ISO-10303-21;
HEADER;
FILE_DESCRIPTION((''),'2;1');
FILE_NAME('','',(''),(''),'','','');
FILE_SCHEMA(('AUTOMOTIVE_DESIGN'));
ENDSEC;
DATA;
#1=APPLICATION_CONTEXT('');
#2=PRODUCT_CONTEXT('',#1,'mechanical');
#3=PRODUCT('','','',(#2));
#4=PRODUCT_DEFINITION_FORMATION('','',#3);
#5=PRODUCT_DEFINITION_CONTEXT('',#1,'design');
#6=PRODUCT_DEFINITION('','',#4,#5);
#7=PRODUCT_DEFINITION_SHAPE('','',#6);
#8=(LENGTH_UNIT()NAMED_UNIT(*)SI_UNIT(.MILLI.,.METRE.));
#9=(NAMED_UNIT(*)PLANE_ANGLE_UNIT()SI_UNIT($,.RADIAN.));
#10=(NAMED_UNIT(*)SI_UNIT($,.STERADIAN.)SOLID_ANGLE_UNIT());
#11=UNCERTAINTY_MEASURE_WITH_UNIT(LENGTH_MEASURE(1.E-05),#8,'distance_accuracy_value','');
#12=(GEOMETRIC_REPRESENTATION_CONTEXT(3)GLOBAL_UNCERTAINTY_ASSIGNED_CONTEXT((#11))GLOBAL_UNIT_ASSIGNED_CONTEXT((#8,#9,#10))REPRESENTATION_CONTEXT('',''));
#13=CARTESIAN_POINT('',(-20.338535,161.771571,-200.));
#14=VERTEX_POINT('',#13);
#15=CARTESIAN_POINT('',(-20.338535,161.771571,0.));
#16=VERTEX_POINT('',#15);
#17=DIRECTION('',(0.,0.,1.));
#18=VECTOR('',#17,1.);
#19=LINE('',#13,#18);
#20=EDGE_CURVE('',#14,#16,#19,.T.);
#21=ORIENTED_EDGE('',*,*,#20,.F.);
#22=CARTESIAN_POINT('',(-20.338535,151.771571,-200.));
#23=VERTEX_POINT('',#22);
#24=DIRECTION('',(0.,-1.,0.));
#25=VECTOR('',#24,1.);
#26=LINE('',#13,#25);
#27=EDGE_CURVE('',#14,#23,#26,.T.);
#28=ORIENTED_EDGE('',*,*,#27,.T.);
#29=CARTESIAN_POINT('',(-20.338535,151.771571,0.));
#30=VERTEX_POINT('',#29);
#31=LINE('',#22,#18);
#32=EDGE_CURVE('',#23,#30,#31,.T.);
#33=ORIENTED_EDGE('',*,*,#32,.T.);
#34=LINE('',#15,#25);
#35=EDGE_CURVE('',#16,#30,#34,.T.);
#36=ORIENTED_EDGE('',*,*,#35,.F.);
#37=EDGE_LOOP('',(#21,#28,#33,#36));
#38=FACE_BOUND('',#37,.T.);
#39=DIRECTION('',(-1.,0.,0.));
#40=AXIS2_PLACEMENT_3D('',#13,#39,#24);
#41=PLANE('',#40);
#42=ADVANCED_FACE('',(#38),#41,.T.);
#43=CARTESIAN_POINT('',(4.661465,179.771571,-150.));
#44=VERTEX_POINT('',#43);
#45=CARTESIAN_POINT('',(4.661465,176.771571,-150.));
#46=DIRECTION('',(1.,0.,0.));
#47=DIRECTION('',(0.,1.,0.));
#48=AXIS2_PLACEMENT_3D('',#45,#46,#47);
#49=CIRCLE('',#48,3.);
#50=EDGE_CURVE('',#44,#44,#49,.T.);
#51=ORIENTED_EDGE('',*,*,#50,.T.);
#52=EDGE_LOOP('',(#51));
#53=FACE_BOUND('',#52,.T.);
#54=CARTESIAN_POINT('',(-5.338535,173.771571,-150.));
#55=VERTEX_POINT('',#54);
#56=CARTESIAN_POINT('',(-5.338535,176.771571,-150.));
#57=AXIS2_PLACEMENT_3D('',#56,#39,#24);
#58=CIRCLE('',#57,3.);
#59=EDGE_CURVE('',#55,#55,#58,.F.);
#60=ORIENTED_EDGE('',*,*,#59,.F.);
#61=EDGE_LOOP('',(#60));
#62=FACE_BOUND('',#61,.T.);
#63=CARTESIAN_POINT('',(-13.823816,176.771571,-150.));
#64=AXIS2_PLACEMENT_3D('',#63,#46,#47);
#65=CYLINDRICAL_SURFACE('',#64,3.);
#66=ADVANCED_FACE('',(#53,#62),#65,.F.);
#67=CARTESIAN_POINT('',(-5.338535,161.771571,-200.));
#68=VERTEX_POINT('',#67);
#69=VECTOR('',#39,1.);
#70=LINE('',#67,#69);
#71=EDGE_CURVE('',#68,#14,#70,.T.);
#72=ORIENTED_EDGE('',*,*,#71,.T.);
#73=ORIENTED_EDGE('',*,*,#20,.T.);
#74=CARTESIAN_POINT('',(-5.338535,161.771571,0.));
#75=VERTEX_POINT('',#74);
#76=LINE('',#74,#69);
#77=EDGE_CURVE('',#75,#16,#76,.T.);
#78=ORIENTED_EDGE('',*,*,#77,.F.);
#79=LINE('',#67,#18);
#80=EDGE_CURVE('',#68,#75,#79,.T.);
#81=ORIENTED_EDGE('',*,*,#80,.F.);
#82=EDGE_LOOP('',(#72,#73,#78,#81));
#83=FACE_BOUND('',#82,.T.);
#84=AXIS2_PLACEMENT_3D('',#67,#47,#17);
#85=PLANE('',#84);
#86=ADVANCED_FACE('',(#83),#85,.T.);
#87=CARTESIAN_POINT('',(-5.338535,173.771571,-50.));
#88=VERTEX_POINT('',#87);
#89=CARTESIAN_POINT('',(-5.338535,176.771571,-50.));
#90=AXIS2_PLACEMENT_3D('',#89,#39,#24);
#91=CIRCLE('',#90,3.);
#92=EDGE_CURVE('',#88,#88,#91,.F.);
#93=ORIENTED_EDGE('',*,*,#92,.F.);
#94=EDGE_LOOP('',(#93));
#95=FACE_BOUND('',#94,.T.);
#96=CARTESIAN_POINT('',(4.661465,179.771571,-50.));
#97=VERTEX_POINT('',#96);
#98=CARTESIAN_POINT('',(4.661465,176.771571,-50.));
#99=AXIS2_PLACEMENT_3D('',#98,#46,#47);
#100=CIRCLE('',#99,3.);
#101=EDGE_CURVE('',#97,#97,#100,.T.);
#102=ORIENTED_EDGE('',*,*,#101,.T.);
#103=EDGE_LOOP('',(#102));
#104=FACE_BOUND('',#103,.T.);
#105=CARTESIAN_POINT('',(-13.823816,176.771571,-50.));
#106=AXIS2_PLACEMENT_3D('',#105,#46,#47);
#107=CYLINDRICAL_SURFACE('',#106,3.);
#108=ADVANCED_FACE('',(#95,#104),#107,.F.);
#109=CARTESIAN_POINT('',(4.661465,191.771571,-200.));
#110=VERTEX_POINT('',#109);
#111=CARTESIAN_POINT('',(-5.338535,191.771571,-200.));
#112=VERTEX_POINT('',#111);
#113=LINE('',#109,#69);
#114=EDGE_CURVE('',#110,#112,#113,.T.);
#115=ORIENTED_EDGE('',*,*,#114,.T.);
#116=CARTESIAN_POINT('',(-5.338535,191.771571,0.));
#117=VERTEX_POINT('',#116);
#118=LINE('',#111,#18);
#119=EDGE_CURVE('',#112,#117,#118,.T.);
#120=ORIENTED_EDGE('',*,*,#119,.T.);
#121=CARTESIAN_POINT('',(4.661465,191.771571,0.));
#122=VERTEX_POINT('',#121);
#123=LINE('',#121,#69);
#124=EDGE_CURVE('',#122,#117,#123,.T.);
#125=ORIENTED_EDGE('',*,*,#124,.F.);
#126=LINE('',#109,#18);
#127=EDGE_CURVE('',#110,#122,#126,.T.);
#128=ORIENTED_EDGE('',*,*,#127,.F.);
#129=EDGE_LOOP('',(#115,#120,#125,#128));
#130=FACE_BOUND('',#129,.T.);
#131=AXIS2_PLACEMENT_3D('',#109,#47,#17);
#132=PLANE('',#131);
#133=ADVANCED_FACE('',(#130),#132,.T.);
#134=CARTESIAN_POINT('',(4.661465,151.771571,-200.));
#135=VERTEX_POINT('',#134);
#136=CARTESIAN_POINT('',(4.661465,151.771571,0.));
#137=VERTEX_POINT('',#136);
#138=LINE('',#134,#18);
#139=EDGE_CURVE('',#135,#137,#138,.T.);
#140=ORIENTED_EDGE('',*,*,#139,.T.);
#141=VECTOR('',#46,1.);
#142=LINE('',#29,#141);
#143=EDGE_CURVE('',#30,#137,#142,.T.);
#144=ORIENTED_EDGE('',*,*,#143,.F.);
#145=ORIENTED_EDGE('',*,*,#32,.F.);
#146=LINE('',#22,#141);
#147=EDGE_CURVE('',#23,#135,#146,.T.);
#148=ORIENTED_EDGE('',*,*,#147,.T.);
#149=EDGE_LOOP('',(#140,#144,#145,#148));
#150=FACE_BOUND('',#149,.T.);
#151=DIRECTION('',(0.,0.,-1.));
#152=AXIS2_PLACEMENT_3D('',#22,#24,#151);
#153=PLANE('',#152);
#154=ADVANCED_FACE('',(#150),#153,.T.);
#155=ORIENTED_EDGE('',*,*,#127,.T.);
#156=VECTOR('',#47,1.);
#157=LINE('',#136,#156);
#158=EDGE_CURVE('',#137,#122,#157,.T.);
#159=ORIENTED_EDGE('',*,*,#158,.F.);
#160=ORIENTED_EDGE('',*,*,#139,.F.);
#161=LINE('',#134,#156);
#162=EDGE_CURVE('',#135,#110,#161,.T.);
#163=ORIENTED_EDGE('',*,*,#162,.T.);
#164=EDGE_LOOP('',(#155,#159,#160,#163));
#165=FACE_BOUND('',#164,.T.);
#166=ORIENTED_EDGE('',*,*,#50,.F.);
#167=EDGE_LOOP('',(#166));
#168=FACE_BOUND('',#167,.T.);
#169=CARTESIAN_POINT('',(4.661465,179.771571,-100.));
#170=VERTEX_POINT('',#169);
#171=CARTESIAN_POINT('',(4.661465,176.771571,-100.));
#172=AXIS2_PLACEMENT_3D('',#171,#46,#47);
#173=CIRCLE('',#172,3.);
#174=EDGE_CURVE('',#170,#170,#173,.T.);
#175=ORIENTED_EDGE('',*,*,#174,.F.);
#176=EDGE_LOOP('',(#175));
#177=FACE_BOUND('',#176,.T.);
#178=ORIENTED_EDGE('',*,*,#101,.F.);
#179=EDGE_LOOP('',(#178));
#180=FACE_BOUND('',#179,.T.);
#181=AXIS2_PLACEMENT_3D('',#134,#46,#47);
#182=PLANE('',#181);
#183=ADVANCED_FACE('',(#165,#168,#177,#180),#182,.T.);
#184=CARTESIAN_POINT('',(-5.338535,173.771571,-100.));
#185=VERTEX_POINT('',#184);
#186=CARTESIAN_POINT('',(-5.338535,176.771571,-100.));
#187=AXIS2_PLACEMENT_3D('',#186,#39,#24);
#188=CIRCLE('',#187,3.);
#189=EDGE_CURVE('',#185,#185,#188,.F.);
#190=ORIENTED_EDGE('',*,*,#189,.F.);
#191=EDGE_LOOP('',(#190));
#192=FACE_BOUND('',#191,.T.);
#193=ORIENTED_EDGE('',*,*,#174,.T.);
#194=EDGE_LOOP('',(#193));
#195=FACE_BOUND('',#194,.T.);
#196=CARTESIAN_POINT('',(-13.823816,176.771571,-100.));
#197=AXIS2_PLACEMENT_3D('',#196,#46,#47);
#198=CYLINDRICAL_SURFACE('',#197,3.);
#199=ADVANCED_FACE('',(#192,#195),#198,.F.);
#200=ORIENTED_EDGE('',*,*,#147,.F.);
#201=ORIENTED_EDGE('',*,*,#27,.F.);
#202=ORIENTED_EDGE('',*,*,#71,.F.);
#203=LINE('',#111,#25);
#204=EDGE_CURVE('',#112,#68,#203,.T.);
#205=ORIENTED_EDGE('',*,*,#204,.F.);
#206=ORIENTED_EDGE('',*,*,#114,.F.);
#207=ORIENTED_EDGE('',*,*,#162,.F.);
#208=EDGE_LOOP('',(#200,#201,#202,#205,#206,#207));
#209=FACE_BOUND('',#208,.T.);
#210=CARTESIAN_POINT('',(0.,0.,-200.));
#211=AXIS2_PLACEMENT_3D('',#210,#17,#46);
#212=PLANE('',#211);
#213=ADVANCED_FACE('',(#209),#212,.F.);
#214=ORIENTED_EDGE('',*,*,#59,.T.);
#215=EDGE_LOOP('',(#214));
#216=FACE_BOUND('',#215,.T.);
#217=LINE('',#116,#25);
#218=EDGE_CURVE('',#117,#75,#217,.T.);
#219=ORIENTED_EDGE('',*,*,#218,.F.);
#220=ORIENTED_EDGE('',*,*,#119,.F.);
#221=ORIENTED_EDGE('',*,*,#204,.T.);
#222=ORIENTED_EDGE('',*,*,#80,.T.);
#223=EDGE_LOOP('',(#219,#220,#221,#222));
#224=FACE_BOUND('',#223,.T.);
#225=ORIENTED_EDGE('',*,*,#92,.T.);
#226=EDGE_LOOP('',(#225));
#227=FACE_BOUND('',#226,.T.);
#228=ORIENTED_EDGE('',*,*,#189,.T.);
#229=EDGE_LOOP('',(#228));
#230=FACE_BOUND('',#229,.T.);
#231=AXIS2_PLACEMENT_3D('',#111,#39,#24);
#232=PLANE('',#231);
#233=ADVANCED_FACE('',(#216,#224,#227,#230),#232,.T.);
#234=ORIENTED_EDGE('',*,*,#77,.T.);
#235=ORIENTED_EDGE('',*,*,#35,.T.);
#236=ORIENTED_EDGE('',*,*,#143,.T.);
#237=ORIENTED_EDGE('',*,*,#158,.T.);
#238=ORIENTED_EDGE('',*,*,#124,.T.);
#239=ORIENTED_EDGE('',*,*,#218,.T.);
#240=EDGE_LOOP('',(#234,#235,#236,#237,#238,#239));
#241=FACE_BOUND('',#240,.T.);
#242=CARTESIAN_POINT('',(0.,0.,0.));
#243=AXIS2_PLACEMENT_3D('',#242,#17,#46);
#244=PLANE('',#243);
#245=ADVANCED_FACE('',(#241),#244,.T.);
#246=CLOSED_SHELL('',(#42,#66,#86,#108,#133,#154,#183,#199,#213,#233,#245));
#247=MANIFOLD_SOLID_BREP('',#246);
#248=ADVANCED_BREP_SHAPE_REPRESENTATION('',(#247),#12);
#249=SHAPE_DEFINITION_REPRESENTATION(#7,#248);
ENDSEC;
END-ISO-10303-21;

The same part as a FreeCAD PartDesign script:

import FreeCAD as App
import Part
import Sketcher
Q = App.Units.Quantity


def add_polygon(sketch, points):
    """Adds a closed chain of lines whose ends are joined by coincident constraints."""
    first, n = sketch.GeometryCount, len(points)
    for a, b in zip(points, points[1:] + points[:1]):
        sketch.addGeometry(Part.LineSegment(App.Vector(*a, 0), App.Vector(*b, 0)), False)
    for i in range(n):
        sketch.addConstraint(Sketcher.Constraint("Coincident", first + i, 2, first + (i + 1) % n, 1))

doc = App.newDocument("Part")
params = doc.addObject("Spreadsheet::Sheet", "Params")
for row, (alias, value) in enumerate([
    ("sketch1_width", "15 mm"),
    ("sketch1_width2", "25 mm"),
    ("sketch1_height", "30 mm"),
    ("pad1_length", "200 mm"),
    ("sketch2_diameter", "6 mm"),
    ("pocket1_length", "289.210955 mm"),
    ("linearpattern_pitch", "50 mm"),
], start=1):
    params.set(f"A{row}", alias)
    params.set(f"B{row}", "=" + value)
    params.setAlias(f"B{row}", alias)

body = doc.addObject("PartDesign::Body", "Body")

# Sketch on XY plane
sketch1 = body.newObject("Sketcher::SketchObject", "Sketch")
sketch1.AttachmentSupport = (doc.getObject("XY_Plane"), [""])
sketch1.MapMode = "FlatFace"
add_polygon(sketch1, [(-5, 192), (-5, 162), (-20, 162), (-20, 152), (5, 152), (5, 192)])  # lines 0-5
sketch1.addConstraint([
    Sketcher.Constraint("Vertical", 0),
    Sketcher.Constraint("Horizontal", 1),
    Sketcher.Constraint("Vertical", 2),
    Sketcher.Constraint("Horizontal", 3),
    Sketcher.Constraint("Vertical", 4),
    Sketcher.Constraint("Horizontal", 5),
    Sketcher.Constraint("Equal", 5, 2),
    Sketcher.Constraint("DistanceX", 1, 2, 1, 1, Q("15 mm")),
    Sketcher.Constraint("DistanceX", 3, 1, 3, 2, Q("25 mm")),
    Sketcher.Constraint("DistanceY", 0, 2, 0, 1, Q("30 mm")),
    Sketcher.Constraint("DistanceY", -1, 1, 0, 2, Q("161.771571 mm")),
    Sketcher.Constraint("DistanceX", 0, 2, -1, 1, Q("5.338535 mm")),
])
sketch1.setExpression("Constraints[13]", "Params.sketch1_width")
sketch1.setExpression("Constraints[14]", "Params.sketch1_width2")
sketch1.setExpression("Constraints[15]", "Params.sketch1_height")
pad1 = body.newObject("PartDesign::Pad", "Pad")
pad1.Profile = sketch1
pad1.setExpression("Length", "Params.pad1_length")
pad1.Reversed = True

# Sketch on YZ plane
sketch2 = body.newObject("Sketcher::SketchObject", "Sketch001")
sketch2.AttachmentSupport = (doc.getObject("YZ_Plane"), [""])
sketch2.MapMode = "FlatFace"
sketch2.AttachmentOffset = App.Placement(App.Vector(0, 0, -5.338535), App.Rotation())
sketch2.addGeometry(Part.Circle(App.Vector(176.8, -150, 0), App.Vector(0, 0, 1), 3), False)
sketch2.addConstraint([
    Sketcher.Constraint("Diameter", 0, Q("6 mm")),
    Sketcher.Constraint("DistanceY", 0, 3, -1, 1, Q("150 mm")),
    Sketcher.Constraint("DistanceX", -1, 1, 0, 3, Q("176.771571 mm")),
])
sketch2.setExpression("Constraints[0]", "Params.sketch2_diameter")
pocket1 = body.newObject("PartDesign::Pocket", "Pocket")
pocket1.Profile = sketch2
pocket1.setExpression("Length", "Params.pocket1_length")
pocket1.Reversed = True
doc.recompute()

linearpattern = body.newObject("PartDesign::LinearPattern", "LinearPattern")
linearpattern.Originals = [pocket1]
linearpattern.Direction = (doc.getObject("Z_Axis"), [""])
linearpattern.Mode = "offset"
linearpattern.setExpression("Offset", "Params.linearpattern_pitch")
linearpattern.Occurrences = 3
body.Tip = linearpattern

doc.recompute()
